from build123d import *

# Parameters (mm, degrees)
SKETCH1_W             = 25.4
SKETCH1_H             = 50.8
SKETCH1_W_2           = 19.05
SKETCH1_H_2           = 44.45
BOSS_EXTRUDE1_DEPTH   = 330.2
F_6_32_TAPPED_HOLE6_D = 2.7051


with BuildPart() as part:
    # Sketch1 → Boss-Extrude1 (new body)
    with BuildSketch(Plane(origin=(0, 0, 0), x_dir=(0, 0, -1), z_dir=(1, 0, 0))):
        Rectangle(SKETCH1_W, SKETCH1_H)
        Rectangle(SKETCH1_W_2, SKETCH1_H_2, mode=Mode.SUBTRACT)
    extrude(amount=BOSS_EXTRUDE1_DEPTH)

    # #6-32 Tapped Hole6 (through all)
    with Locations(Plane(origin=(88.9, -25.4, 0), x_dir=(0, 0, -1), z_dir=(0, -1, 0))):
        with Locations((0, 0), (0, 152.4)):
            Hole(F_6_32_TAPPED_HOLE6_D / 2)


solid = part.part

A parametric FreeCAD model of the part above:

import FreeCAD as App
import Part
import Sketcher
Q = App.Units.Quantity


def add_polygon(sketch, points):
    """Adds a closed chain of lines whose ends are joined by coincident constraints."""
    first, n = sketch.GeometryCount, len(points)
    for a, b in zip(points, points[1:] + points[:1]):
        sketch.addGeometry(Part.LineSegment(App.Vector(*a, 0), App.Vector(*b, 0)), False)
    for i in range(n):
        sketch.addConstraint(Sketcher.Constraint("Coincident", first + i, 2, first + (i + 1) % n, 1))

doc = App.newDocument("Part")
params = doc.addObject("Spreadsheet::Sheet", "Params")
for row, (alias, value) in enumerate([
    ("sketch1_width", "2 in"),
    ("sketch1_height", "1 in"),
    ("sketch1_width2", "1.75 in"),
    ("sketch1_height2", "0.75 in"),
    ("pad1_length", "13 in"),
    ("hole_diameter", "0.1065 in"),
], start=1):
    params.set(f"A{row}", alias)
    params.set(f"B{row}", "=" + value)
    params.setAlias(f"B{row}", alias)

body = doc.addObject("PartDesign::Body", "Body")

sketch1 = body.newObject("Sketcher::SketchObject", "Sketch")
sketch1.AttachmentSupport = (doc.getObject("YZ_Plane"), [""])
sketch1.MapMode = "FlatFace"
add_polygon(sketch1, [(25, 13), (-25, 13), (-25, -13), (25, -13)])
add_polygon(sketch1, [(-22, -10), (-22, 10), (22, 10), (22, -10)])
sketch1.addConstraint(Sketcher.Constraint("Horizontal", 0))
sketch1.addConstraint(Sketcher.Constraint("Vertical", 1))
sketch1.addConstraint(Sketcher.Constraint("Horizontal", 2))
sketch1.addConstraint(Sketcher.Constraint("Vertical", 3))
sketch1.addConstraint(Sketcher.Constraint("Vertical", 4))
sketch1.addConstraint(Sketcher.Constraint("Horizontal", 5))
sketch1.addConstraint(Sketcher.Constraint("Vertical", 6))
sketch1.addConstraint(Sketcher.Constraint("Horizontal", 7))
sketch1.addConstraint(Sketcher.Constraint("Symmetric", 0, 2, 2, 2, -1, 1))
sketch1.addConstraint(Sketcher.Constraint("Symmetric", 4, 2, 6, 2, -1, 1))
sketch1.addConstraint(Sketcher.Constraint("DistanceX", 0, 2, 0, 1, Q("2 in")))
sketch1.addConstraint(Sketcher.Constraint("DistanceY", 1, 2, 1, 1, Q("1 in")))
sketch1.addConstraint(Sketcher.Constraint("DistanceX", 5, 1, 5, 2, Q("1.75 in")))
sketch1.addConstraint(Sketcher.Constraint("DistanceY", 4, 1, 4, 2, Q("0.75 in")))
sketch1.setExpression("Constraints[18]", "Params.sketch1_width")
sketch1.setExpression("Constraints[19]", "Params.sketch1_height")
sketch1.setExpression("Constraints[20]", "Params.sketch1_width2")
sketch1.setExpression("Constraints[21]", "Params.sketch1_height2")
pad1 = body.newObject("PartDesign::Pad", "Pad")
pad1.Profile = sketch1
pad1.setExpression("Length", "Params.pad1_length")

sketch2 = body.newObject("Sketcher::SketchObject", "Sketch001")
sketch2.AttachmentSupport = (doc.getObject("XZ_Plane"), [""])
sketch2.MapMode = "FlatFace"
sketch2.AttachmentOffset = App.Placement(App.Vector(0, 0, 1 * 25.4), App.Rotation())
sketch2.addGeometry(Part.Circle(App.Vector(88.9, 0, 0), App.Vector(0, 0, 1), 1.4), False)
sketch2.addGeometry(Part.Circle(App.Vector(241.3, 0, 0), App.Vector(0, 0, 1), 1.4), False)
sketch2.addConstraint(Sketcher.Constraint("Equal", 0, 1))
sketch2.addConstraint(Sketcher.Constraint("PointOnObject", 0, 3, -1))
sketch2.addConstraint(Sketcher.Constraint("PointOnObject", 1, 3, -1))
sketch2.addConstraint(Sketcher.Constraint("DistanceX", 0, 3, 1, 3, Q("6 in")))
sketch2.addConstraint(Sketcher.Constraint("Diameter", 0, Q("0.1065 in")))
sketch2.addConstraint(Sketcher.Constraint("DistanceX", -1, 1, 0, 3, Q("3.5 in")))
doc.recompute()
hole = body.newObject("PartDesign::Hole", "Hole")
hole.Profile = sketch2
hole.ThreadType = "None"
hole.setExpression("Diameter", "Params.hole_diameter")
hole.DepthType = "ThroughAll"

doc.recompute()
